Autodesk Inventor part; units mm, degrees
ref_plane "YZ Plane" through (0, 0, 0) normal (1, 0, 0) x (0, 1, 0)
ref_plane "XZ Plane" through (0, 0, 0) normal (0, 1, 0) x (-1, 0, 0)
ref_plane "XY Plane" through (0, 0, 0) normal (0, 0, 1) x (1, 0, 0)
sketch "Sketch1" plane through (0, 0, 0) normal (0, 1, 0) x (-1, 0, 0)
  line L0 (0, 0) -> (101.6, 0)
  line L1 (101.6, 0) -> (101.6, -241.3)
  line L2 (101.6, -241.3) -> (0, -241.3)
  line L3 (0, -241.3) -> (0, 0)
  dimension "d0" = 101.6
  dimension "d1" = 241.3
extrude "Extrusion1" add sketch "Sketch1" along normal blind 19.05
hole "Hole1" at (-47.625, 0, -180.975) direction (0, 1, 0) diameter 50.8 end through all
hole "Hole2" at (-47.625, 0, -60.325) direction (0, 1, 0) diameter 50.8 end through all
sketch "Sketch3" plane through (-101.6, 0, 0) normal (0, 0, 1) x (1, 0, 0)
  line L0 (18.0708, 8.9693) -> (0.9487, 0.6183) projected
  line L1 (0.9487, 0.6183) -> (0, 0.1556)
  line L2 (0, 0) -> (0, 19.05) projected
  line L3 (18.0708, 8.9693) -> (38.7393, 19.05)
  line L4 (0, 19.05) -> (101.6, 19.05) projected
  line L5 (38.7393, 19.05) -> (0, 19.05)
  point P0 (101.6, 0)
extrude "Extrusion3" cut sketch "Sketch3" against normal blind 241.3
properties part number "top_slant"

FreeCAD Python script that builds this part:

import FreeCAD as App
import Part
import Sketcher

V = App.Vector
Q = App.Units.Quantity

doc = App.newDocument("Part")
body = doc.addObject("PartDesign::Body", "Body")

# Sketch on XZ plane
sketch1 = body.newObject("Sketcher::SketchObject", "Sketch")
sketch1.AttachmentSupport = (doc.getObject("XZ_Plane"), [""])
sketch1.MapMode = "FlatFace"
sketch1.addGeometry([
    Part.LineSegment(V(-102, 0, 0), V(0, 0, 0)),
    Part.LineSegment(V(0, 0, 0), V(0, -241, 0)),
    Part.LineSegment(V(0, -241, 0), V(-102, -241, 0)),
    Part.LineSegment(V(-102, -241, 0), V(-102, 0, 0)),
], False)
sketch1.addConstraint([
    Sketcher.Constraint("Coincident", 0, 2, 1, 1),
    Sketcher.Constraint("Coincident", 1, 2, 2, 1),
    Sketcher.Constraint("Coincident", 2, 2, 3, 1),
    Sketcher.Constraint("Coincident", 3, 2, 0, 1),
    Sketcher.Constraint("Horizontal", 0),
    Sketcher.Constraint("Vertical", 1),
    Sketcher.Constraint("Horizontal", 2),
    Sketcher.Constraint("Vertical", 3),
    Sketcher.Constraint("Coincident", 0, 2, -1, 1),
    Sketcher.Constraint("DistanceX", 0, 1, 0, 2, Q("4 in")),
    Sketcher.Constraint("DistanceY", 1, 2, 1, 1, Q("9.5 in")),
])
pad1 = body.newObject("PartDesign::Pad", "Pad")
pad1.Profile = sketch1
pad1.Length = Q("0.75 in")
pad1.Reversed = True

# Sketch on XZ plane
sketch2 = body.newObject("Sketcher::SketchObject", "Sketch001")
sketch2.AttachmentSupport = (doc.getObject("XZ_Plane"), [""])
sketch2.MapMode = "FlatFace"
sketch2.addGeometry(Part.Circle(V(-48, -181, 0), V(0, 0, 1), 25), False)
sketch2.addConstraint([
    Sketcher.Constraint("Diameter", 0, Q("2 in")),
    Sketcher.Constraint("DistanceX", 0, 3, -1, 1, Q("1.875 in")),
    Sketcher.Constraint("DistanceY", 0, 3, -1, 1, Q("7.125 in")),
])
doc.recompute()
hole = body.newObject("PartDesign::Hole", "Hole")
hole.Profile = sketch2
hole.ThreadType = "None"
hole.Diameter = Q("2 in")
hole.DepthType = "ThroughAll"

# Sketch on XZ plane
sketch3 = body.newObject("Sketcher::SketchObject", "Sketch002")
sketch3.AttachmentSupport = (doc.getObject("XZ_Plane"), [""])
sketch3.MapMode = "FlatFace"
sketch3.addGeometry(Part.Circle(V(-48, -60, 0), V(0, 0, 1), 25), False)
sketch3.addConstraint([
    Sketcher.Constraint("Diameter", 0, Q("2 in")),
    Sketcher.Constraint("DistanceX", 0, 3, -1, 1, Q("1.875 in")),
    Sketcher.Constraint("DistanceY", 0, 3, -1, 1, Q("2.375 in")),
])
doc.recompute()
hole2 = body.newObject("PartDesign::Hole", "Hole001")
hole2.Profile = sketch3
hole2.ThreadType = "None"
hole2.Diameter = Q("2 in")
hole2.DepthType = "ThroughAll"

# Sketch on XY plane
sketch4 = body.newObject("Sketcher::SketchObject", "Sketch003")
sketch4.AttachmentSupport = (doc.getObject("XY_Plane"), [""])
sketch4.MapMode = "FlatFace"
sketch4.addGeometry([
    Part.LineSegment(V(-100.7, 0.6, 0), V(-83.5, 9, 0)),  # 0
    Part.LineSegment(V(-83.5, 9, 0), V(-62.9, 19.1, 0)),  # 1
    Part.LineSegment(V(-62.9, 19.1, 0), V(-101.6, 19.1, 0)),  # 2
    Part.LineSegment(V(-101.6, 19.1, 0), V(-101.6, 0.2, 0)),  # 3
    Part.LineSegment(V(-101.6, 0.2, 0), V(-100.7, 0.6, 0)),  # 4
], False)
sketch4.addConstraint([
    Sketcher.Constraint("Coincident", 0, 2, 1, 1),
    Sketcher.Constraint("Coincident", 1, 2, 2, 1),
    Sketcher.Constraint("Coincident", 2, 2, 3, 1),
    Sketcher.Constraint("Coincident", 3, 2, 4, 1),
    Sketcher.Constraint("Coincident", 4, 2, 0, 1),
    Sketcher.Constraint("Horizontal", 2),
    Sketcher.Constraint("Vertical", 3),
    Sketcher.Constraint("Parallel", 0, 1),
    Sketcher.Constraint("Parallel", 1, 4),
    Sketcher.Constraint("DistanceX", 2, 2, -1, 1, Q("4 in")),
    Sketcher.Constraint("Angle", 0, Q("26 deg")),
    Sketcher.Constraint("Distance", 0, Q("0.75 in")),
    Sketcher.Constraint("DistanceY", -1, 1, 1, 2, Q("0.75 in")),
    Sketcher.Constraint("DistanceY", 3, 2, 0, 2, Q("0.347 in")),
    Sketcher.Constraint("DistanceX", 2, 2, 2, 1, 38.7393),
])
pocket1 = body.newObject("PartDesign::Pocket", "Pocket")
pocket1.Profile = sketch4
pocket1.Length = Q("9.5 in")

doc.recompute()
